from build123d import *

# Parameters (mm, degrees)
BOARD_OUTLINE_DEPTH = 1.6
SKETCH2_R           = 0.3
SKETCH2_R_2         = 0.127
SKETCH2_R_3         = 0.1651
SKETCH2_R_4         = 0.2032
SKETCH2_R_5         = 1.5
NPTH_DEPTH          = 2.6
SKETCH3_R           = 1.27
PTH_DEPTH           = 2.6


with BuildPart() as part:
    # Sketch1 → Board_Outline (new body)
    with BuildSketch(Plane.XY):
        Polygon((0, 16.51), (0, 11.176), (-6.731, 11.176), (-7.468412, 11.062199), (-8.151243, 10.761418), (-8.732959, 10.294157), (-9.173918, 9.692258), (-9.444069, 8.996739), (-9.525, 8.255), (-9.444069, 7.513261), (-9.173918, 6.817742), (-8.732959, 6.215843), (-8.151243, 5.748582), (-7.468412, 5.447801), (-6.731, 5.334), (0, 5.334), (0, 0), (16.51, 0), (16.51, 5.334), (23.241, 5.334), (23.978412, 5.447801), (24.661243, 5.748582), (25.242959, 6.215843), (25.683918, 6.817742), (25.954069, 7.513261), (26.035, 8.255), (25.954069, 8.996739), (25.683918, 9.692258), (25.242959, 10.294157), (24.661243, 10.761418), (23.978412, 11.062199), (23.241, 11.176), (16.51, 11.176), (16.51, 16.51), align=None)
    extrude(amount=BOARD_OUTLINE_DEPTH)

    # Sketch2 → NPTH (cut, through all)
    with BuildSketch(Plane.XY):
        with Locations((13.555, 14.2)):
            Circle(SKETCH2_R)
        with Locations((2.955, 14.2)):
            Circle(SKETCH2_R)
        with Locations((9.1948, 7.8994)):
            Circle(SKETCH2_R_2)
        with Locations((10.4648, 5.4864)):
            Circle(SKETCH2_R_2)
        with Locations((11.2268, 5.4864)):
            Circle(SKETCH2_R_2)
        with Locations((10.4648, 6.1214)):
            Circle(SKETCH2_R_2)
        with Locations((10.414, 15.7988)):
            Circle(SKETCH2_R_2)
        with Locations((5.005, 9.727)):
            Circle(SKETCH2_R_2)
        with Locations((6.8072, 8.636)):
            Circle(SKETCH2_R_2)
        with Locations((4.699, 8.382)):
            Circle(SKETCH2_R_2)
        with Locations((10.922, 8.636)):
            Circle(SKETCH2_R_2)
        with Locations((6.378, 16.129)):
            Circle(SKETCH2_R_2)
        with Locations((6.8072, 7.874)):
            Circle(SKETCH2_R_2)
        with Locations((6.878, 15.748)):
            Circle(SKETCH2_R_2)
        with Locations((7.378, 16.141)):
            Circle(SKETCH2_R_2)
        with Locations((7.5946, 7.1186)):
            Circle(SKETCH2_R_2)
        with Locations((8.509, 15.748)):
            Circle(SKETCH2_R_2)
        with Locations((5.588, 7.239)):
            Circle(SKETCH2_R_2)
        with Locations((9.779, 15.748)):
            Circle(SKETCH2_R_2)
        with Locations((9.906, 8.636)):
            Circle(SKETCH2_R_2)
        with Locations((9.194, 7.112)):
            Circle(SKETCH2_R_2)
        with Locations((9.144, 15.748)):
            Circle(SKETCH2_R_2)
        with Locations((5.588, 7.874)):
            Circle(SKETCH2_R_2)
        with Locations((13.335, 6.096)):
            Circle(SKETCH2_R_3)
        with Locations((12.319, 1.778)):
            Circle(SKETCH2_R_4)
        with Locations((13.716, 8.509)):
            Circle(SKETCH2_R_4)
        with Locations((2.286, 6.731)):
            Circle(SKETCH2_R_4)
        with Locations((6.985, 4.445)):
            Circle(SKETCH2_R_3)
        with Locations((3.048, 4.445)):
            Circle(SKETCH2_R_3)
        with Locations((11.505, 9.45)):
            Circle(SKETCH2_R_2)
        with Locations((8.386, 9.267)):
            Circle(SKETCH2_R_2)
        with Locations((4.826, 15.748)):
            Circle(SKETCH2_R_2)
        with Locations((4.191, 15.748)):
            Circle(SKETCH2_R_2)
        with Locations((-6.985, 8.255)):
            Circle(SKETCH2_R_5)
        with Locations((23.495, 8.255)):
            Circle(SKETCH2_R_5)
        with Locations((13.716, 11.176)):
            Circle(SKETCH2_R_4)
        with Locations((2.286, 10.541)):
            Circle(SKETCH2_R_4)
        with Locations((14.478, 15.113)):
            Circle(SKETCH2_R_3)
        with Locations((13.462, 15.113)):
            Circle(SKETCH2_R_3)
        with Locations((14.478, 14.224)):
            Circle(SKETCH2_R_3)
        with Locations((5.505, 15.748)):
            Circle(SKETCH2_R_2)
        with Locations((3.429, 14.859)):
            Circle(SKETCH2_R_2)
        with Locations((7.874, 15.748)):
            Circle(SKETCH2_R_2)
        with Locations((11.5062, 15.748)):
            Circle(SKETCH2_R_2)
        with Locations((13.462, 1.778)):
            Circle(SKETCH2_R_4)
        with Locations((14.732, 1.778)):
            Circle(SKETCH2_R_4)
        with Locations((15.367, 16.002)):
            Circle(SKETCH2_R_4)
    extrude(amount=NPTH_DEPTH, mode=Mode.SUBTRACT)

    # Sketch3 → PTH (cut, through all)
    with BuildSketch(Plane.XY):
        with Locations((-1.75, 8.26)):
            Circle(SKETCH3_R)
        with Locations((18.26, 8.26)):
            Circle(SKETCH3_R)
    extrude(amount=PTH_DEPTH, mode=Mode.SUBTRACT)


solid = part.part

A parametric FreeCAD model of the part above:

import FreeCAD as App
import Part
import Sketcher
from FreeCAD import Vector
Q = App.Units.Quantity


def add_polygon(sketch, points):
    """Adds a closed chain of lines whose ends are joined by coincident constraints."""
    first, n = sketch.GeometryCount, len(points)
    for a, b in zip(points, points[1:] + points[:1]):
        sketch.addGeometry(Part.LineSegment(App.Vector(*a, 0), App.Vector(*b, 0)), False)
    for i in range(n):
        sketch.addConstraint(Sketcher.Constraint("Coincident", first + i, 2, first + (i + 1) % n, 1))

doc = App.newDocument("Part")
body = doc.addObject("PartDesign::Body", "Body")

sketch1 = body.newObject("Sketcher::SketchObject", "Sketch")
sketch1.AttachmentSupport = (doc.getObject("XY_Plane"), [""])
sketch1.MapMode = "FlatFace"
add_polygon(sketch1, [(0, 16.51), (0, 11.176), (-6.731, 11.176), (-7.468412, 11.062199), (-8.151243, 10.761418), (-8.732959, 10.294157), (-9.173918, 9.692258), (-9.444069, 8.996739), (-9.525, 8.255), (-9.444069, 7.513261), (-9.173918, 6.817742), (-8.732959, 6.215843), (-8.151243, 5.748582), (-7.468412, 5.447801), (-6.731, 5.334), (0, 5.334), (0, 0), (16.51, 0), (16.51, 5.334), (23.241, 5.334), (23.978412, 5.447801), (24.661243, 5.748582), (25.242959, 6.215843), (25.683918, 6.817742), (25.954069, 7.513261), (26.035, 8.255), (25.954069, 8.996739), (25.683918, 9.692258), (25.242959, 10.294157), (24.661243, 10.761418), (23.978412, 11.062199), (23.241, 11.176), (16.51, 11.176), (16.51, 16.51)])
sketch1.addConstraint([
    Sketcher.Constraint("Vertical", 0),
    Sketcher.Constraint("Horizontal", 1),
    Sketcher.Constraint("Horizontal", 14),
    Sketcher.Constraint("Vertical", 15),
    Sketcher.Constraint("Horizontal", 16),
    Sketcher.Constraint("Vertical", 17),
    Sketcher.Constraint("Horizontal", 18),
    Sketcher.Constraint("Horizontal", 31),
    Sketcher.Constraint("Vertical", 32),
    Sketcher.Constraint("Horizontal", 33),
    Sketcher.Constraint("Coincident", 15, 2, -1, 1),
    Sketcher.Constraint("PointOnObject", 0, 2, -2),
    Sketcher.Constraint("Parallel", 2, 19),
    Sketcher.Constraint("Parallel", 3, 20),
    Sketcher.Constraint("Parallel", 4, 21),
    Sketcher.Constraint("Parallel", 5, 22),
    Sketcher.Constraint("Parallel", 6, 23),
    Sketcher.Constraint("Parallel", 7, 24),
    Sketcher.Constraint("Parallel", 8, 25),
    Sketcher.Constraint("Parallel", 9, 26),
    Sketcher.Constraint("Parallel", 10, 27),
    Sketcher.Constraint("Parallel", 11, 28),
    Sketcher.Constraint("Parallel", 12, 29),
    Sketcher.Constraint("Parallel", 13, 30),
    Sketcher.Constraint("Horizontal", 14, 2, 17, 2),
    Sketcher.Constraint("Horizontal", 12, 2, 19, 2),
    Sketcher.Constraint("Horizontal", 11, 2, 20, 2),
    Sketcher.Constraint("Horizontal", 10, 2, 21, 2),
    Sketcher.Constraint("Horizontal", 9, 2, 22, 2),
    Sketcher.Constraint("Horizontal", 8, 2, 23, 2),
    Sketcher.Constraint("Horizontal", 7, 2, 24, 2),
    Sketcher.Constraint("Horizontal", 6, 2, 25, 2),
    Sketcher.Constraint("Horizontal", 5, 2, 26, 2),
    Sketcher.Constraint("Horizontal", 4, 2, 27, 2),
    Sketcher.Constraint("Horizontal", 3, 2, 28, 2),
    Sketcher.Constraint("Horizontal", 2, 2, 29, 2),
    Sketcher.Constraint("Horizontal", 1, 2, 30, 2),
    Sketcher.Constraint("Vertical", 6, 2, 8, 2),
    Sketcher.Constraint("Vertical", 5, 2, 9, 2),
    Sketcher.Constraint("Vertical", 4, 2, 10, 2),
    Sketcher.Constraint("Vertical", 3, 2, 11, 2),
    Sketcher.Constraint("Vertical", 2, 2, 12, 2),
    Sketcher.Constraint("Vertical", 1, 2, 13, 2),
    Sketcher.Constraint("Vertical", 23, 2, 25, 2),
    Sketcher.Constraint("Vertical", 22, 2, 26, 2),
    Sketcher.Constraint("Vertical", 21, 2, 27, 2),
    Sketcher.Constraint("Vertical", 20, 2, 28, 2),
    Sketcher.Constraint("Vertical", 19, 2, 29, 2),
    Sketcher.Constraint("Vertical", 18, 2, 30, 2),
    Sketcher.Constraint("Vertical", 17, 2, 31, 2),
    Sketcher.Constraint("Equal", 14, 18),
    Sketcher.Constraint("Equal", 0, 15),
    Sketcher.Constraint("Equal", 2, 3),
    Sketcher.Constraint("Equal", 3, 4),
    Sketcher.Constraint("Equal", 4, 5),
    Sketcher.Constraint("Equal", 5, 6),
    Sketcher.Constraint("Equal", 6, 7),
    Sketcher.Constraint("DistanceX", 16, 1, 16, 2, Q("0.65 in")),
    Sketcher.Constraint("DistanceY", 0, 2, 0, 1, Q("0.21 in")),
    Sketcher.Constraint("DistanceX", 1, 2, 1, 1, Q("0.265 in")),
    Sketcher.Constraint("DistanceY", -1, 1, 0, 2, Q("0.44 in")),
    Sketcher.Constraint("DistanceX", 7, 2, -1, 1, Q("0.375 in")),
    Sketcher.Constraint("DistanceY", -1, 1, 2, 2, Q("11.062199 mm")),
    Sketcher.Constraint("DistanceY", 5, 2, 4, 2, Q("0.601899 mm")),
    Sketcher.Constraint("Distance", 2, Q("0.746141 mm")),
    Sketcher.Constraint("DistanceY", -1, 1, 3, 2, Q("10.761418 mm")),
    Sketcher.Constraint("DistanceX", 4, 2, -1, 1, Q("8.732959 mm")),
])
pad1 = body.newObject("PartDesign::Pad", "Pad")
pad1.Profile = sketch1
pad1.Length = 1.6

sketch2 = body.newObject("Sketcher::SketchObject", "Sketch001")
sketch2.AttachmentSupport = (doc.getObject("XY_Plane"), [""])
sketch2.MapMode = "FlatFace"
sketch2.addGeometry([
    Part.Circle(Vector(13.555, 14.2, 0), Vector(0, 0, 1), 0.3),
    Part.Circle(Vector(2.955, 14.2, 0), Vector(0, 0, 1), 0.3),
    Part.Circle(Vector(9.1948, 7.8994, 0), Vector(0, 0, 1), 0.127),
    Part.Circle(Vector(10.4648, 5.4864, 0), Vector(0, 0, 1), 0.127),
    Part.Circle(Vector(11.2268, 5.4864, 0), Vector(0, 0, 1), 0.127),
    Part.Circle(Vector(10.4648, 6.1214, 0), Vector(0, 0, 1), 0.127),
    Part.Circle(Vector(10.414, 15.7988, 0), Vector(0, 0, 1), 0.127),
    Part.Circle(Vector(5.005, 9.727, 0), Vector(0, 0, 1), 0.127),
    Part.Circle(Vector(6.8072, 8.636, 0), Vector(0, 0, 1), 0.127),
    Part.Circle(Vector(4.699, 8.382, 0), Vector(0, 0, 1), 0.127),
    Part.Circle(Vector(10.922, 8.636, 0), Vector(0, 0, 1), 0.127),
    Part.Circle(Vector(6.378, 16.129, 0), Vector(0, 0, 1), 0.127),
    Part.Circle(Vector(6.8072, 7.874, 0), Vector(0, 0, 1), 0.127),
    Part.Circle(Vector(6.878, 15.748, 0), Vector(0, 0, 1), 0.127),
    Part.Circle(Vector(7.378, 16.141, 0), Vector(0, 0, 1), 0.127),
    Part.Circle(Vector(7.5946, 7.1186, 0), Vector(0, 0, 1), 0.127),
    Part.Circle(Vector(8.509, 15.748, 0), Vector(0, 0, 1), 0.127),
    Part.Circle(Vector(5.588, 7.239, 0), Vector(0, 0, 1), 0.127),
    Part.Circle(Vector(9.779, 15.748, 0), Vector(0, 0, 1), 0.127),
    Part.Circle(Vector(9.906, 8.636, 0), Vector(0, 0, 1), 0.127),
    Part.Circle(Vector(9.194, 7.112, 0), Vector(0, 0, 1), 0.127),
    Part.Circle(Vector(9.144, 15.748, 0), Vector(0, 0, 1), 0.127),
    Part.Circle(Vector(5.588, 7.874, 0), Vector(0, 0, 1), 0.127),
    Part.Circle(Vector(13.335, 6.096, 0), Vector(0, 0, 1), 0.1651),
    Part.Circle(Vector(12.319, 1.778, 0), Vector(0, 0, 1), 0.2032),
    Part.Circle(Vector(13.716, 8.509, 0), Vector(0, 0, 1), 0.2032),
    Part.Circle(Vector(2.286, 6.731, 0), Vector(0, 0, 1), 0.2032),
    Part.Circle(Vector(6.985, 4.445, 0), Vector(0, 0, 1), 0.1651),
    Part.Circle(Vector(3.048, 4.445, 0), Vector(0, 0, 1), 0.1651),
    Part.Circle(Vector(11.505, 9.45, 0), Vector(0, 0, 1), 0.127),
    Part.Circle(Vector(8.386, 9.267, 0), Vector(0, 0, 1), 0.127),
    Part.Circle(Vector(4.826, 15.748, 0), Vector(0, 0, 1), 0.127),
    Part.Circle(Vector(4.191, 15.748, 0), Vector(0, 0, 1), 0.127),
    Part.Circle(Vector(-6.985, 8.255, 0), Vector(0, 0, 1), 1.5),
    Part.Circle(Vector(23.495, 8.255, 0), Vector(0, 0, 1), 1.5),
    Part.Circle(Vector(13.716, 11.176, 0), Vector(0, 0, 1), 0.2032),
    Part.Circle(Vector(2.286, 10.541, 0), Vector(0, 0, 1), 0.2032),
    Part.Circle(Vector(14.478, 15.113, 0), Vector(0, 0, 1), 0.1651),
    Part.Circle(Vector(13.462, 15.113, 0), Vector(0, 0, 1), 0.1651),
    Part.Circle(Vector(14.478, 14.224, 0), Vector(0, 0, 1), 0.1651),
    Part.Circle(Vector(5.505, 15.748, 0), Vector(0, 0, 1), 0.127),
    Part.Circle(Vector(3.429, 14.859, 0), Vector(0, 0, 1), 0.127),
    Part.Circle(Vector(7.874, 15.748, 0), Vector(0, 0, 1), 0.127),
    Part.Circle(Vector(11.5062, 15.748, 0), Vector(0, 0, 1), 0.127),
    Part.Circle(Vector(13.462, 1.778, 0), Vector(0, 0, 1), 0.2032),
    Part.Circle(Vector(14.732, 1.778, 0), Vector(0, 0, 1), 0.2032),
    Part.Circle(Vector(15.367, 16.002, 0), Vector(0, 0, 1), 0.2032),
], False)
sketch2.addConstraint([
    Sketcher.Constraint("Equal", 0, 1),
    Sketcher.Constraint("Equal", 2, 3),
    Sketcher.Constraint("Equal", 3, 4),
    Sketcher.Constraint("Equal", 4, 5),
    Sketcher.Constraint("Equal", 5, 6),
    Sketcher.Constraint("Equal", 6, 7),
    Sketcher.Constraint("Equal", 7, 8),
    Sketcher.Constraint("Equal", 8, 9),
    Sketcher.Constraint("Equal", 9, 10),
    Sketcher.Constraint("Equal", 10, 11),
    Sketcher.Constraint("Equal", 11, 12),
    Sketcher.Constraint("Equal", 12, 13),
    Sketcher.Constraint("Equal", 13, 14),
    Sketcher.Constraint("Equal", 14, 15),
    Sketcher.Constraint("Equal", 15, 16),
    Sketcher.Constraint("Equal", 16, 17),
    Sketcher.Constraint("Equal", 17, 18),
    Sketcher.Constraint("Equal", 18, 19),
    Sketcher.Constraint("Equal", 19, 20),
    Sketcher.Constraint("Equal", 20, 21),
    Sketcher.Constraint("Equal", 21, 22),
    Sketcher.Constraint("Equal", 24, 25),
    Sketcher.Constraint("Equal", 25, 26),
    Sketcher.Constraint("Equal", 23, 27),
    Sketcher.Constraint("Equal", 27, 28),
    Sketcher.Constraint("Equal", 22, 29),
    Sketcher.Constraint("Equal", 29, 30),
    Sketcher.Constraint("Equal", 30, 31),
    Sketcher.Constraint("Equal", 31, 32),
    Sketcher.Constraint("Equal", 33, 34),
    Sketcher.Constraint("Equal", 26, 35),
    Sketcher.Constraint("Equal", 35, 36),
    Sketcher.Constraint("Equal", 28, 37),
    Sketcher.Constraint("Equal", 37, 38),
    Sketcher.Constraint("Equal", 38, 39),
    Sketcher.Constraint("Equal", 32, 40),
    Sketcher.Constraint("Equal", 40, 41),
    Sketcher.Constraint("Equal", 41, 42),
    Sketcher.Constraint("Equal", 42, 43),
    Sketcher.Constraint("Equal", 36, 44),
    Sketcher.Constraint("Equal", 44, 45),
    Sketcher.Constraint("Equal", 45, 46),
    Sketcher.Constraint("Horizontal", 0, 3, 1, 3),
    Sketcher.Constraint("Horizontal", 3, 3, 4, 3),
    Sketcher.Constraint("Horizontal", 8, 3, 10, 3),
    Sketcher.Constraint("Horizontal", 13, 3, 16, 3),
    Sketcher.Constraint("Horizontal", 16, 3, 18, 3),
    Sketcher.Constraint("Horizontal", 10, 3, 19, 3),
    Sketcher.Constraint("Horizontal", 18, 3, 21, 3),
    Sketcher.Constraint("Horizontal", 12, 3, 22, 3),
    Sketcher.Constraint("Horizontal", 27, 3, 28, 3),
    Sketcher.Constraint("Horizontal", 21, 3, 31, 3),
    Sketcher.Constraint("Horizontal", 31, 3, 32, 3),
    Sketcher.Constraint("Horizontal", 33, 3, 34, 3),
    Sketcher.Constraint("Horizontal", 37, 3, 38, 3),
    Sketcher.Constraint("Horizontal", 32, 3, 40, 3),
    Sketcher.Constraint("Horizontal", 40, 3, 42, 3),
    Sketcher.Constraint("Horizontal", 42, 3, 43, 3),
    Sketcher.Constraint("Horizontal", 24, 3, 44, 3),
    Sketcher.Constraint("Horizontal", 44, 3, 45, 3),
    Sketcher.Constraint("Vertical", 3, 3, 5, 3),
    Sketcher.Constraint("Vertical", 8, 3, 12, 3),
    Sketcher.Constraint("Vertical", 17, 3, 22, 3),
    Sketcher.Constraint("Vertical", 25, 3, 35, 3),
    Sketcher.Constraint("Vertical", 26, 3, 36, 3),
    Sketcher.Constraint("Vertical", 37, 3, 39, 3),
    Sketcher.Constraint("Vertical", 38, 3, 44, 3),
    Sketcher.Constraint("Diameter", 2, Q("0.01 in")),
    Sketcher.Constraint("Diameter", 23, Q("0.013 in")),
    Sketcher.Constraint("Diameter", 24, Q("0.016 in")),
    Sketcher.Constraint("DistanceY", 23, 3, 10, 3, Q("0.1 in")),
    Sketcher.Constraint("DistanceX", 28, 3, 17, 3, Q("0.1 in")),
    Sketcher.Constraint("DistanceX", 23, 3, 34, 3, Q("0.4 in")),
    Sketcher.Constraint("DistanceY", 10, 3, 35, 3, Q("0.1 in")),
    Sketcher.Constraint("Diameter", 0, Q("0.6 mm")),
    Sketcher.Constraint("Diameter", 33, Q("3 mm")),
    Sketcher.Constraint("DistanceX", -1, 1, 6, 3, Q("0.41 in")),
    Sketcher.Constraint("DistanceY", -1, 1, 8, 3, Q("0.34 in")),
    Sketcher.Constraint("DistanceY", -1, 1, 9, 3, Q("0.33 in")),
    Sketcher.Constraint("DistanceX", -1, 1, 10, 3, Q("0.43 in")),
    Sketcher.Constraint("DistanceY", -1, 1, 12, 3, Q("0.31 in")),
    Sketcher.Constraint("DistanceY", -1, 1, 13, 3, Q("0.62 in")),
    Sketcher.Constraint("DistanceX", -1, 1, 17, 3, Q("0.22 in")),
    Sketcher.Constraint("DistanceX", -1, 1, 19, 3, Q("0.39 in")),
    Sketcher.Constraint("DistanceY", -1, 1, 20, 3, Q("0.28 in")),
    Sketcher.Constraint("DistanceX", -1, 1, 21, 3, Q("0.36 in")),
    Sketcher.Constraint("DistanceY", -1, 1, 24, 3, Q("0.07 in")),
    Sketcher.Constraint("DistanceX", -1, 1, 25, 3, Q("0.54 in")),
    Sketcher.Constraint("DistanceX", -1, 1, 26, 3, Q("0.09 in")),
    Sketcher.Constraint("DistanceX", -1, 1, 31, 3, Q("0.19 in")),
    Sketcher.Constraint("DistanceX", -1, 1, 37, 3, Q("0.57 in")),
    Sketcher.Constraint("DistanceX", -1, 1, 38, 3, Q("0.53 in")),
    Sketcher.Constraint("DistanceY", -1, 1, 39, 3, Q("0.56 in")),
    Sketcher.Constraint("DistanceX", -1, 1, 42, 3, Q("0.31 in")),
    Sketcher.Constraint("DistanceX", -1, 1, 45, 3, Q("0.58 in")),
    Sketcher.Constraint("DistanceY", -1, 1, 46, 3, Q("0.63 in")),
    Sketcher.Constraint("DistanceX", 2, 3, 3, 3, Q("0.05 in")),
    Sketcher.Constraint("DistanceX", 3, 3, 4, 3, Q("0.03 in")),
    Sketcher.Constraint("DistanceY", 5, 3, 2, 3, Q("0.07 in")),
    Sketcher.Constraint("DistanceX", 16, 3, 18, 3, Q("0.05 in")),
    Sketcher.Constraint("DistanceX", 24, 3, 23, 3, Q("0.04 in")),
    Sketcher.Constraint("DistanceY", 26, 3, 17, 3, Q("0.02 in")),
    Sketcher.Constraint("DistanceY", 27, 3, 17, 3, Q("0.11 in")),
    Sketcher.Constraint("DistanceY", 26, 3, 33, 3, Q("0.06 in")),
    Sketcher.Constraint("DistanceX", 33, 3, 9, 3, Q("0.46 in")),
    Sketcher.Constraint("DistanceY", 34, 3, 25, 3, Q("0.01 in")),
    Sketcher.Constraint("DistanceY", 26, 3, 36, 3, Q("0.15 in")),
    Sketcher.Constraint("DistanceX", 41, 3, 32, 3, Q("0.03 in")),
    Sketcher.Constraint("DistanceY", 41, 3, 11, 3, Q("0.05 in")),
    Sketcher.Constraint("DistanceX", -1, 1, 2, 3, Q("0.362 in")),
    Sketcher.Constraint("DistanceY", -1, 1, 2, 3, Q("0.311 in")),
    Sketcher.Constraint("DistanceY", -1, 1, 3, 3, Q("0.216 in")),
    Sketcher.Constraint("DistanceY", -1, 1, 6, 3, Q("0.622 in")),
    Sketcher.Constraint("DistanceX", -1, 1, 8, 3, Q("0.268 in")),
    Sketcher.Constraint("DistanceX", -1, 1, 9, 3, Q("0.185 in")),
    Sketcher.Constraint("DistanceY", -1, 1, 11, 3, Q("0.635 in")),
    Sketcher.Constraint("DistanceX", -1, 1, 15, 3, Q("0.299 in")),
    Sketcher.Constraint("DistanceX", -1, 1, 16, 3, Q("0.335 in")),
    Sketcher.Constraint("DistanceY", -1, 1, 17, 3, Q("0.285 in")),
    Sketcher.Constraint("DistanceX", -1, 1, 23, 3, Q("0.525 in")),
    Sketcher.Constraint("DistanceX", -1, 1, 27, 3, Q("0.275 in")),
    Sketcher.Constraint("DistanceX", -1, 1, 32, 3, Q("0.165 in")),
    Sketcher.Constraint("DistanceY", -1, 1, 37, 3, Q("0.595 in")),
    Sketcher.Constraint("DistanceX", -1, 1, 43, 3, Q("0.453 in")),
    Sketcher.Constraint("DistanceX", -1, 1, 46, 3, Q("0.605 in")),
    Sketcher.Constraint("DistanceX", -1, 1, 0, 3, Q("13.555 mm")),
    Sketcher.Constraint("DistanceY", -1, 1, 0, 3, Q("14.2 mm")),
    Sketcher.Constraint("DistanceX", -1, 1, 1, 3, Q("2.955 mm")),
    Sketcher.Constraint("DistanceX", -1, 1, 7, 3, Q("5.005 mm")),
    Sketcher.Constraint("DistanceY", -1, 1, 7, 3, Q("9.727 mm")),
    Sketcher.Constraint("DistanceX", -1, 1, 11, 3, Q("6.378 mm")),
    Sketcher.Constraint("DistanceX", -1, 1, 13, 3, Q("6.878 mm")),
    Sketcher.Constraint("DistanceX", -1, 1, 14, 3, Q("7.378 mm")),
    Sketcher.Constraint("DistanceY", -1, 1, 14, 3, Q("16.141 mm")),
    Sketcher.Constraint("DistanceY", -1, 1, 15, 3, Q("7.1186 mm")),
    Sketcher.Constraint("DistanceX", -1, 1, 20, 3, Q("9.194 mm")),
    Sketcher.Constraint("DistanceX", -1, 1, 29, 3, Q("11.505 mm")),
    Sketcher.Constraint("DistanceY", -1, 1, 29, 3, Q("9.45 mm")),
    Sketcher.Constraint("DistanceX", -1, 1, 30, 3, Q("8.386 mm")),
    Sketcher.Constraint("DistanceY", -1, 1, 30, 3, Q("9.267 mm")),
    Sketcher.Constraint("DistanceX", -1, 1, 40, 3, Q("5.505 mm")),
])
pocket1 = body.newObject("PartDesign::Pocket", "Pocket")
pocket1.Profile = sketch2
pocket1.Type = "ThroughAll"
pocket1.Reversed = True

sketch3 = body.newObject("Sketcher::SketchObject", "Sketch002")
sketch3.AttachmentSupport = (doc.getObject("XY_Plane"), [""])
sketch3.MapMode = "FlatFace"
sketch3.addGeometry([
    Part.Circle(Vector(-1.75, 8.26, 0), Vector(0, 0, 1), 1.27),
    Part.Circle(Vector(18.26, 8.26, 0), Vector(0, 0, 1), 1.27),
], False)
sketch3.addConstraint([
    Sketcher.Constraint("Equal", 0, 1),
    Sketcher.Constraint("Horizontal", 0, 3, 1, 3),
    Sketcher.Constraint("Diameter", 0, Q("0.1 in")),
    Sketcher.Constraint("DistanceX", 0, 3, -1, 1, Q("1.75 mm")),
    Sketcher.Constraint("DistanceY", -1, 1, 0, 3, Q("8.26 mm")),
    Sketcher.Constraint("DistanceX", -1, 1, 1, 3, Q("18.26 mm")),
])
pocket2 = body.newObject("PartDesign::Pocket", "Pocket001")
pocket2.Profile = sketch3
pocket2.Type = "ThroughAll"
pocket2.Reversed = True

doc.recompute()
